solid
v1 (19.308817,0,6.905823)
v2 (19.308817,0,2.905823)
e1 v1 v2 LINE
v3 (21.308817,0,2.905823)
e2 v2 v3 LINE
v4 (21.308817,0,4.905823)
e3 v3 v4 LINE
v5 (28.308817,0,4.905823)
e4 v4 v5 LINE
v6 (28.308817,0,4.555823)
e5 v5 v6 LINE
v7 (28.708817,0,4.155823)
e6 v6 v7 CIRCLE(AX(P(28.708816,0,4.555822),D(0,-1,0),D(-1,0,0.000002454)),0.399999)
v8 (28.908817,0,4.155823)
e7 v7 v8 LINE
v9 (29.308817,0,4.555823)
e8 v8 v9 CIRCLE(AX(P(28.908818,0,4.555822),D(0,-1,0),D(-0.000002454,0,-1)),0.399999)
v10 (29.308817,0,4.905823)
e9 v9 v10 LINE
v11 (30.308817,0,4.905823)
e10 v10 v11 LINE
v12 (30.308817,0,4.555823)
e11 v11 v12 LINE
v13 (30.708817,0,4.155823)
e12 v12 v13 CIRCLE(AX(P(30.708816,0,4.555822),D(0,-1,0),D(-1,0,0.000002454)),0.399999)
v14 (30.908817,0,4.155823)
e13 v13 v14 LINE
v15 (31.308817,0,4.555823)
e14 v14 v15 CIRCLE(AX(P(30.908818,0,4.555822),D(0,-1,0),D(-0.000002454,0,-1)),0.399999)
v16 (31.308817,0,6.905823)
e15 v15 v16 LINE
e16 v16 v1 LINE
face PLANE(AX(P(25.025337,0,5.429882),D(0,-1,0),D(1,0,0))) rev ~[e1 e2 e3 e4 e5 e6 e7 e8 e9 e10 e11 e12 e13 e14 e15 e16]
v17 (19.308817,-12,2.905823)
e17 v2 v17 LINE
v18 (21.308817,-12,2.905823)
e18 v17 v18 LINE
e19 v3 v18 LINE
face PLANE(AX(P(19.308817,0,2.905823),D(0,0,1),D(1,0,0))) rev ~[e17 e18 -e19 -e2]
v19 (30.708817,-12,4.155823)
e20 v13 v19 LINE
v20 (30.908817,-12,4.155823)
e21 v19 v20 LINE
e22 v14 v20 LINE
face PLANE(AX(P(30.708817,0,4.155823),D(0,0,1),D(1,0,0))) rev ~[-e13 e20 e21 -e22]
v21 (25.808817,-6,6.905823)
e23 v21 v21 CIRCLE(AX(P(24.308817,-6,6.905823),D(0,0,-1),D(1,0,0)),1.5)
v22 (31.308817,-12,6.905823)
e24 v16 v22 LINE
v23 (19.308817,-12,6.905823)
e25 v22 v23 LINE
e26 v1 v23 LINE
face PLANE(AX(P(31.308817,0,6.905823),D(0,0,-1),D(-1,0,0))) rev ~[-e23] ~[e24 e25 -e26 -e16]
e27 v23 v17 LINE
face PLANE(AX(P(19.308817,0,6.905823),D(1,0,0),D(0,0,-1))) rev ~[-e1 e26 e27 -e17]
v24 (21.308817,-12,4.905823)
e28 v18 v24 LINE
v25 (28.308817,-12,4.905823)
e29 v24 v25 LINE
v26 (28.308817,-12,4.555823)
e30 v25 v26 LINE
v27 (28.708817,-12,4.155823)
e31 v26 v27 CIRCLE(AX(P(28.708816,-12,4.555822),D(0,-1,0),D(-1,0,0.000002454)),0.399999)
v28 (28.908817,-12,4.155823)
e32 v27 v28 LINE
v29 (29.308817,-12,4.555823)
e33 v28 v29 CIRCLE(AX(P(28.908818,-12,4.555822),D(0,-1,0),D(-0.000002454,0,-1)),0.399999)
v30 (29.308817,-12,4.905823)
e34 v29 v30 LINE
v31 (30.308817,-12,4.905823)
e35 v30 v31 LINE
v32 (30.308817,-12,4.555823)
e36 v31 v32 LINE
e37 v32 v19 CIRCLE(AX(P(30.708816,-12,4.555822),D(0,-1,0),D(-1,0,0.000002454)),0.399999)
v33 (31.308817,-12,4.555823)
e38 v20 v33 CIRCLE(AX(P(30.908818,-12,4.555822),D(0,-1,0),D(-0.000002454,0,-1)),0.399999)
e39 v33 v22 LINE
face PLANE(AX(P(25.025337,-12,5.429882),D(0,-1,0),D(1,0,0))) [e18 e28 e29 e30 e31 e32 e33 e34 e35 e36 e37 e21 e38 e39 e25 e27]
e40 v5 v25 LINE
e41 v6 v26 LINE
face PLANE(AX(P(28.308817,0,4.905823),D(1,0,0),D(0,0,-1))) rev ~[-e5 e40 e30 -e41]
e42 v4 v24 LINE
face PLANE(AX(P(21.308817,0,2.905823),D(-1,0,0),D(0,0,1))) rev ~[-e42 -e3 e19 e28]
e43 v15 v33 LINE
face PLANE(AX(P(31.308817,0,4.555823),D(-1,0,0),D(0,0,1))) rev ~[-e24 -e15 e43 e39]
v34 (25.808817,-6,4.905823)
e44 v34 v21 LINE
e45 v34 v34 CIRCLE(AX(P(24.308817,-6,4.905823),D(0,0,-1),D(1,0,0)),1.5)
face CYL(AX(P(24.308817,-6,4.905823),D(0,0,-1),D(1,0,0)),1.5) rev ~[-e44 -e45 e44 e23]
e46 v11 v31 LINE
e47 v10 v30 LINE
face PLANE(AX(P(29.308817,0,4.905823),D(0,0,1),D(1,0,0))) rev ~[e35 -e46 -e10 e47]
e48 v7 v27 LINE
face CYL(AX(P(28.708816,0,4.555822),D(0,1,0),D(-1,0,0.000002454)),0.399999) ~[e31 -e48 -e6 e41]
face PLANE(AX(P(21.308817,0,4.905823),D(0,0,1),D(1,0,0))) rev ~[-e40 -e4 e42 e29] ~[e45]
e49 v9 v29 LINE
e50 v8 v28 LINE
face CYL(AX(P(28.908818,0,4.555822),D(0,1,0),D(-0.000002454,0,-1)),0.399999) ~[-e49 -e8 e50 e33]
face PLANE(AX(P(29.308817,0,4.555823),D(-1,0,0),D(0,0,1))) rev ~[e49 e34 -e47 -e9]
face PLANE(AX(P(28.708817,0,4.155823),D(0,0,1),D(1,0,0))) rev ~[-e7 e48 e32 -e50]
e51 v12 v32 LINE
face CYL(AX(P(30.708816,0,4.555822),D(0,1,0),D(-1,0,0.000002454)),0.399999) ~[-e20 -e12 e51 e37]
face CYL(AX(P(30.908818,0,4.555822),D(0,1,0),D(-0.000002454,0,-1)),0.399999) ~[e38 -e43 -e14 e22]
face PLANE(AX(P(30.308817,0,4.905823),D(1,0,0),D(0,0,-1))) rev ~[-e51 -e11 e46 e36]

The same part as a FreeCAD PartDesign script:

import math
import FreeCAD as App
import Part
import Sketcher

V = App.Vector

doc = App.newDocument("Part")
body = doc.addObject("PartDesign::Body", "Body")

sketch1 = body.newObject("Sketcher::SketchObject", "Sketch")
sketch1.AttachmentSupport = (doc.getObject("XZ_Plane"), [""])
sketch1.MapMode = "FlatFace"
sketch1.addGeometry(Part.LineSegment(V(31.308817, 6.905823, 0), V(19.308817, 6.905823, 0)), False)
sketch1.addGeometry(Part.LineSegment(V(19.308817, 6.905823, 0), V(19.308817, 2.905823, 0)), False)
sketch1.addGeometry(Part.LineSegment(V(19.308817, 2.905823, 0), V(21.308817, 2.905823, 0)), False)
sketch1.addGeometry(Part.LineSegment(V(21.308817, 2.905823, 0), V(21.308817, 4.905823, 0)), False)
sketch1.addGeometry(Part.LineSegment(V(21.308817, 4.905823, 0), V(28.308817, 4.905823, 0)), False)
sketch1.addGeometry(Part.LineSegment(V(28.308817, 4.905823, 0), V(28.308817, 4.555823, 0)), False)
sketch1.addGeometry(Part.ArcOfCircle(Part.Circle(V(28.708816, 4.555822, 0), V(0, 0, 1), 0.399999), math.radians(179.999859), math.radians(270.000141)), False)
sketch1.addGeometry(Part.LineSegment(V(28.708817, 4.155823, 0), V(28.908817, 4.155823, 0)), False)
sketch1.addGeometry(Part.ArcOfCircle(Part.Circle(V(28.908818, 4.555822, 0), V(0, 0, 1), 0.399999), math.radians(-90.000141), math.radians(0.000141)), False)
sketch1.addGeometry(Part.LineSegment(V(29.308817, 4.555823, 0), V(29.308817, 4.905823, 0)), False)
sketch1.addGeometry(Part.LineSegment(V(29.308817, 4.905823, 0), V(30.308817, 4.905823, 0)), False)
sketch1.addGeometry(Part.LineSegment(V(30.308817, 4.905823, 0), V(30.308817, 4.555823, 0)), False)
sketch1.addGeometry(Part.ArcOfCircle(Part.Circle(V(30.708816, 4.555822, 0), V(0, 0, 1), 0.399999), math.radians(179.999859), math.radians(270.000141)), False)
sketch1.addGeometry(Part.LineSegment(V(30.708817, 4.155823, 0), V(30.908817, 4.155823, 0)), False)
sketch1.addGeometry(Part.ArcOfCircle(Part.Circle(V(30.908818, 4.555822, 0), V(0, 0, 1), 0.399999), math.radians(-90.000141), math.radians(0.000141)), False)
sketch1.addGeometry(Part.LineSegment(V(31.308817, 4.555823, 0), V(31.308817, 6.905823, 0)), False)
sketch1.addConstraint(Sketcher.Constraint("Coincident", 0, 2, 1, 1))
sketch1.addConstraint(Sketcher.Constraint("Coincident", 1, 2, 2, 1))
sketch1.addConstraint(Sketcher.Constraint("Coincident", 2, 2, 3, 1))
sketch1.addConstraint(Sketcher.Constraint("Coincident", 3, 2, 4, 1))
sketch1.addConstraint(Sketcher.Constraint("Coincident", 4, 2, 5, 1))
sketch1.addConstraint(Sketcher.Constraint("Coincident", 5, 2, 6, 1))
sketch1.addConstraint(Sketcher.Constraint("Coincident", 6, 2, 7, 1))
sketch1.addConstraint(Sketcher.Constraint("Coincident", 7, 2, 8, 1))
sketch1.addConstraint(Sketcher.Constraint("Coincident", 8, 2, 9, 1))
sketch1.addConstraint(Sketcher.Constraint("Coincident", 9, 2, 10, 1))
sketch1.addConstraint(Sketcher.Constraint("Coincident", 10, 2, 11, 1))
sketch1.addConstraint(Sketcher.Constraint("Coincident", 11, 2, 12, 1))
sketch1.addConstraint(Sketcher.Constraint("Coincident", 12, 2, 13, 1))
sketch1.addConstraint(Sketcher.Constraint("Coincident", 13, 2, 14, 1))
sketch1.addConstraint(Sketcher.Constraint("Coincident", 14, 2, 15, 1))
sketch1.addConstraint(Sketcher.Constraint("Coincident", 15, 2, 0, 1))
sketch1.addConstraint(Sketcher.Constraint("Horizontal", 0))
sketch1.addConstraint(Sketcher.Constraint("Vertical", 1))
sketch1.addConstraint(Sketcher.Constraint("Horizontal", 2))
sketch1.addConstraint(Sketcher.Constraint("Vertical", 3))
sketch1.addConstraint(Sketcher.Constraint("Horizontal", 4))
sketch1.addConstraint(Sketcher.Constraint("Vertical", 5))
sketch1.addConstraint(Sketcher.Constraint("Horizontal", 7))
sketch1.addConstraint(Sketcher.Constraint("Vertical", 9))
sketch1.addConstraint(Sketcher.Constraint("Horizontal", 10))
sketch1.addConstraint(Sketcher.Constraint("Vertical", 11))
sketch1.addConstraint(Sketcher.Constraint("Horizontal", 13))
sketch1.addConstraint(Sketcher.Constraint("Vertical", 15))
sketch1.addConstraint(Sketcher.Constraint("Equal", 6, 8))
sketch1.addConstraint(Sketcher.Constraint("Equal", 8, 12))
sketch1.addConstraint(Sketcher.Constraint("Equal", 12, 14))
sketch1.addConstraint(Sketcher.Constraint("Horizontal", 8, 3, 12, 3))
sketch1.addConstraint(Sketcher.Constraint("Horizontal", 14, 3, 5, 2))
sketch1.addConstraint(Sketcher.Constraint("Horizontal", 5, 2, 8, 2))
sketch1.addConstraint(Sketcher.Constraint("Horizontal", 4, 2, 9, 2))
sketch1.addConstraint(Sketcher.Constraint("Horizontal", 8, 2, 11, 2))
sketch1.addConstraint(Sketcher.Constraint("Horizontal", 11, 2, 14, 2))
sketch1.addConstraint(Sketcher.Constraint("Vertical", 8, 3, 7, 2))
sketch1.addConstraint(Sketcher.Constraint("Vertical", 14, 3, 13, 2))
sketch1.addConstraint(Sketcher.Constraint("Equal", 7, 13))
sketch1.addConstraint(Sketcher.Constraint("Equal", 2, 3))
sketch1.addConstraint(Sketcher.Constraint("Radius", 6, 0.399999))
sketch1.addConstraint(Sketcher.Constraint("DistanceX", 0, 2, 0, 1, 12.0))
sketch1.addConstraint(Sketcher.Constraint("DistanceX", 2, 1, 2, 2, 2.0))
sketch1.addConstraint(Sketcher.Constraint("DistanceX", 4, 1, 4, 2, 7.0))
sketch1.addConstraint(Sketcher.Constraint("DistanceX", 10, 1, 10, 2, 1.0))
sketch1.addConstraint(Sketcher.Constraint("DistanceY", 1, 2, 1, 1, 4.0))
sketch1.addConstraint(Sketcher.Constraint("DistanceX", 7, 1, 7, 2, 0.2))
sketch1.addConstraint(Sketcher.Constraint("DistanceX", 6, 3, 12, 3, 2.0))
sketch1.addConstraint(Sketcher.Constraint("DistanceY", 5, 2, 5, 1, 0.35))
sketch1.addConstraint(Sketcher.Constraint("DistanceX", -1, 1, 6, 3, 28.708816))
sketch1.addConstraint(Sketcher.Constraint("DistanceY", -1, 1, 6, 3, 4.555822))
pad1 = body.newObject("PartDesign::Pad", "Pad")
pad1.Profile = sketch1
pad1.Length = 12

sketch2 = body.newObject("Sketcher::SketchObject", "Sketch001")
sketch2.AttachmentSupport = (doc.getObject("XY_Plane"), [""])
sketch2.MapMode = "FlatFace"
sketch2.AttachmentOffset = App.Placement(V(0, 0, 4.905823), App.Rotation())
sketch2.addGeometry(Part.Circle(V(24.308817, -6, 0), V(0, 0, 1), 1.5), False)
sketch2.addConstraint(Sketcher.Constraint("Diameter", 0, 3.0))
sketch2.addConstraint(Sketcher.Constraint("DistanceY", 0, 3, -1, 1, 6.0))
sketch2.addConstraint(Sketcher.Constraint("DistanceX", -1, 1, 0, 3, 24.308817))
pocket1 = body.newObject("PartDesign::Pocket", "Pocket")
pocket1.Profile = sketch2
pocket1.Length = 25
pocket1.Reversed = True

doc.recompute()
